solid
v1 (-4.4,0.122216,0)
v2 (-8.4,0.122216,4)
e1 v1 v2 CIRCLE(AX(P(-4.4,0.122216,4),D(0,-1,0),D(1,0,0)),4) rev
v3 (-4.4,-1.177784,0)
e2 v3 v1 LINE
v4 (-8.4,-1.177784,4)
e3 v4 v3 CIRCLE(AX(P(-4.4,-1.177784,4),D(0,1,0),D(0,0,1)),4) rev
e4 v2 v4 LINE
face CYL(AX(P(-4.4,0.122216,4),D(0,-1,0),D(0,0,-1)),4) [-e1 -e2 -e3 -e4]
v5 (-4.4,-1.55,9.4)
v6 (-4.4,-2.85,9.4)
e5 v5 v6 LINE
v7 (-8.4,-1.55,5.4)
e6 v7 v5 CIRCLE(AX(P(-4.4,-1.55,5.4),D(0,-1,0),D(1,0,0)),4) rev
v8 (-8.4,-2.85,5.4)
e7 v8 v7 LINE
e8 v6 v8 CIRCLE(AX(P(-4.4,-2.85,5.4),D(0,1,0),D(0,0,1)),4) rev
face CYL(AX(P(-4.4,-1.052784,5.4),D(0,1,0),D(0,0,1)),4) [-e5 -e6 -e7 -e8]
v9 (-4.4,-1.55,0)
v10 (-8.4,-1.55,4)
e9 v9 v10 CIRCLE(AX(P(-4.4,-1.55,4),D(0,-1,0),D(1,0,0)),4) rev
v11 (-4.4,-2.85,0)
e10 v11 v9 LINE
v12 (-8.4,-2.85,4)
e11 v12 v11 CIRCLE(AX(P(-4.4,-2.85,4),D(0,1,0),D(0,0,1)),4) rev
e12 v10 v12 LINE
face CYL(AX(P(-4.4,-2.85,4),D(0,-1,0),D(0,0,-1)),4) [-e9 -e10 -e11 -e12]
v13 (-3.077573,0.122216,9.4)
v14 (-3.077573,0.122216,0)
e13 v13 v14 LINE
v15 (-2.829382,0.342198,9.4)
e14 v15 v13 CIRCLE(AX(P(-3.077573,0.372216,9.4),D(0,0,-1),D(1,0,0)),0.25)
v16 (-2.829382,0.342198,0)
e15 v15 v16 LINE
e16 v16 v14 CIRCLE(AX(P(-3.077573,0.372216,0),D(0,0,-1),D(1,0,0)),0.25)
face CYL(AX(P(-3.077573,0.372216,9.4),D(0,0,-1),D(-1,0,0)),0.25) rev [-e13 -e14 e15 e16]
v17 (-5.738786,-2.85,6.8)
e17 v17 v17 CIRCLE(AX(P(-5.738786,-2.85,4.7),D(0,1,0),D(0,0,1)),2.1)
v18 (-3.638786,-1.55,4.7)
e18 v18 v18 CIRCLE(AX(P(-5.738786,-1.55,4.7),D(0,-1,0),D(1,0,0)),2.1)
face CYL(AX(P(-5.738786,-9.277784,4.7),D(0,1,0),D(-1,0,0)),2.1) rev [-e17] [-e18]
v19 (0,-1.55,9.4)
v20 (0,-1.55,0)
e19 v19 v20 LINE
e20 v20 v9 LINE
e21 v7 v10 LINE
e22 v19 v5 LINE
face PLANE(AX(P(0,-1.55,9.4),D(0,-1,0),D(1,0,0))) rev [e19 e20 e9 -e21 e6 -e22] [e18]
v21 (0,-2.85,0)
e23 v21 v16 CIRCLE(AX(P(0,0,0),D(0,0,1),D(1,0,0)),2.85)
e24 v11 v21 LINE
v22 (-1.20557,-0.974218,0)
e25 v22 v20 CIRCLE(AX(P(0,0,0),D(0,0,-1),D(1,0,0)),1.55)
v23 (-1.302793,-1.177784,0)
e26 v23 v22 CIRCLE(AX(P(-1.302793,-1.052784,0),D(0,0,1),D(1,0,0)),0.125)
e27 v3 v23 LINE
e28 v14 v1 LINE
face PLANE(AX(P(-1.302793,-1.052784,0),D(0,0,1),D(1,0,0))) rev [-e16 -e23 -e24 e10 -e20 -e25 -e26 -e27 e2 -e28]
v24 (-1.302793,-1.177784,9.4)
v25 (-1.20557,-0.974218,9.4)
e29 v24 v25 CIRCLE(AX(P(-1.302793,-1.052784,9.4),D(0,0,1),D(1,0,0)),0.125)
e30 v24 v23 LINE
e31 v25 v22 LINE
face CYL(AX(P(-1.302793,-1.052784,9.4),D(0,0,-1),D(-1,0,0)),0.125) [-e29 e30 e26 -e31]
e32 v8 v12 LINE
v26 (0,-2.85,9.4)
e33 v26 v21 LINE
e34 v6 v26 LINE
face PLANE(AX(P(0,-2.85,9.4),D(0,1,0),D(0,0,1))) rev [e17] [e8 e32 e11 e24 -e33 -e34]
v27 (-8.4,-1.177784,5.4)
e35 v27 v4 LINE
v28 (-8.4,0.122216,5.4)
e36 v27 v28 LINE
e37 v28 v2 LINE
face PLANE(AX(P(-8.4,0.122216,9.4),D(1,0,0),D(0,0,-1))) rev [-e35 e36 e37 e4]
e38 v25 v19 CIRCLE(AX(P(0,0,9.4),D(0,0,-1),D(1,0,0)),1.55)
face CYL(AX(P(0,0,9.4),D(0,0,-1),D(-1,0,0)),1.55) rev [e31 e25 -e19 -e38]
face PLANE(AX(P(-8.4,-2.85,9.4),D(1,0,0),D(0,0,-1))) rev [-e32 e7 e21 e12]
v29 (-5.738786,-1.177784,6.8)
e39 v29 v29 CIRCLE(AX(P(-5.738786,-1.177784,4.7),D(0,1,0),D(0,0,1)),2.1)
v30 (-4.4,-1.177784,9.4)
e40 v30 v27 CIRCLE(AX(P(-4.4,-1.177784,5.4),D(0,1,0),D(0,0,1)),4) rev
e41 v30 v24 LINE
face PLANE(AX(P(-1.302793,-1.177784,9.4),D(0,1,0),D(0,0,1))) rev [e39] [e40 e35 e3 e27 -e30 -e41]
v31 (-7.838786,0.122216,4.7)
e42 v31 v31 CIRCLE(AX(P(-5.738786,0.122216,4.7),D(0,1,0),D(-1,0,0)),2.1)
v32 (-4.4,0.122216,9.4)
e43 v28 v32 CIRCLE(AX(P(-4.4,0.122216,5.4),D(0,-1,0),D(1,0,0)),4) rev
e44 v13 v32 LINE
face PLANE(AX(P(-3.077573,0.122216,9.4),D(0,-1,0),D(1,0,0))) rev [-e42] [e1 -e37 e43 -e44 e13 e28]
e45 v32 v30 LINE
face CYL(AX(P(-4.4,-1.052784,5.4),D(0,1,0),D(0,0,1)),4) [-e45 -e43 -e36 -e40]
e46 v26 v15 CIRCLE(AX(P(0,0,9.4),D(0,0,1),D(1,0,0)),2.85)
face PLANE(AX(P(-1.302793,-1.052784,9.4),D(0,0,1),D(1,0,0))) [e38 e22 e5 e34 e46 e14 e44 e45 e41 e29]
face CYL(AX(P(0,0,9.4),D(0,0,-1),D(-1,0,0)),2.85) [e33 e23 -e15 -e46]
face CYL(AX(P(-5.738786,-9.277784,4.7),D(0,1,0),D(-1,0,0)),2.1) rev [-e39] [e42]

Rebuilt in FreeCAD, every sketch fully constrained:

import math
import FreeCAD as App
import Part
import Sketcher

V = App.Vector


def edges_at(feature, points):
    """Names of the edges that pass closest to the given points."""
    edges = feature.Shape.Edges
    near = lambda p: min(range(len(edges)), key=lambda i: edges[i].distToShape(Part.Vertex(*p))[0])
    return sorted({f"Edge{near(p) + 1}" for p in points})

doc = App.newDocument("Part")
body = doc.addObject("PartDesign::Body", "Body")

sketch1 = body.newObject("Sketcher::SketchObject", "Sketch")
sketch1.AttachmentSupport = (doc.getObject("XY_Plane"), [""])
sketch1.MapMode = "FlatFace"
sketch1.addGeometry(Part.LineSegment(V(0, -1.55, 0), V(-8.4, -1.55, 0)), False)
sketch1.addGeometry(Part.LineSegment(V(-8.4, -1.55, 0), V(-8.4, -2.85, 0)), False)
sketch1.addGeometry(Part.LineSegment(V(-8.4, -2.85, 0), V(0, -2.85, 0)), False)
sketch1.addGeometry(Part.ArcOfCircle(Part.Circle(V(0, 0, 0), V(0, 0, 1), 2.85), math.radians(-90), math.radians(173)), False)
sketch1.addGeometry(Part.ArcOfCircle(Part.Circle(V(-3.08, 0.37, 0), V(0, 0, 1), 0.25), math.radians(-90), math.radians(-7)), False)
sketch1.addGeometry(Part.LineSegment(V(-3.08, 0.12, 0), V(-8.4, 0.12, 0)), False)
sketch1.addGeometry(Part.LineSegment(V(-8.4, 0.12, 0), V(-8.4, -1.18, 0)), False)
sketch1.addGeometry(Part.LineSegment(V(-8.4, -1.18, 0), V(-1.3, -1.18, 0)), False)
sketch1.addGeometry(Part.ArcOfCircle(Part.Circle(V(-1.3, -1.05, 0), V(0, 0, 1), 0.12), math.radians(-90), math.radians(39)), False)
sketch1.addGeometry(Part.ArcOfCircle(Part.Circle(V(0, 0, 0), V(0, 0, 1), 1.55), math.radians(-90), math.radians(219)), False)
sketch1.addConstraint(Sketcher.Constraint("Coincident", 0, 2, 1, 1))
sketch1.addConstraint(Sketcher.Constraint("Coincident", 1, 2, 2, 1))
sketch1.addConstraint(Sketcher.Constraint("Tangent", 2, 2, 3, 1))
sketch1.addConstraint(Sketcher.Constraint("Tangent", 3, 2, 4, 2))
sketch1.addConstraint(Sketcher.Constraint("Tangent", 4, 1, 5, 1))
sketch1.addConstraint(Sketcher.Constraint("Coincident", 5, 2, 6, 1))
sketch1.addConstraint(Sketcher.Constraint("Coincident", 6, 2, 7, 1))
sketch1.addConstraint(Sketcher.Constraint("Tangent", 7, 2, 8, 1))
sketch1.addConstraint(Sketcher.Constraint("Tangent", 8, 2, 9, 2))
sketch1.addConstraint(Sketcher.Constraint("Tangent", 9, 1, 0, 1))
sketch1.addConstraint(Sketcher.Constraint("Horizontal", 0))
sketch1.addConstraint(Sketcher.Constraint("Vertical", 1))
sketch1.addConstraint(Sketcher.Constraint("Horizontal", 2))
sketch1.addConstraint(Sketcher.Constraint("Horizontal", 5))
sketch1.addConstraint(Sketcher.Constraint("Vertical", 6))
sketch1.addConstraint(Sketcher.Constraint("Horizontal", 7))
sketch1.addConstraint(Sketcher.Constraint("Coincident", 3, 3, -1, 1))
sketch1.addConstraint(Sketcher.Constraint("Coincident", 9, 3, -1, 1))
sketch1.addConstraint(Sketcher.Constraint("Vertical", 1, 2, 5, 2))
sketch1.addConstraint(Sketcher.Constraint("Equal", 1, 6))
sketch1.addConstraint(Sketcher.Constraint("Radius", 3, 2.85))
sketch1.addConstraint(Sketcher.Constraint("Radius", 4, 0.25))
sketch1.addConstraint(Sketcher.Constraint("Radius", 9, 1.55))
sketch1.addConstraint(Sketcher.Constraint("DistanceX", 0, 2, 0, 1, 8.4))
sketch1.addConstraint(Sketcher.Constraint("Radius", 8, 0.125))
sketch1.addConstraint(Sketcher.Constraint("DistanceY", -1, 1, 3, 2, 0.342198))
pad1 = body.newObject("PartDesign::Pad", "Pad")
pad1.Profile = sketch1
pad1.Length = 9.4

sketch2 = body.newObject("Sketcher::SketchObject", "Sketch001")
sketch2.AttachmentSupport = (doc.getObject("XZ_Plane"), [""])
sketch2.MapMode = "FlatFace"
sketch2.AttachmentOffset = App.Placement(V(0, 0, -0.122216), App.Rotation())
sketch2.addGeometry(Part.Circle(V(-5.7, 4.7, 0), V(0, 0, 1), 2.1), False)
sketch2.addConstraint(Sketcher.Constraint("Diameter", 0, 4.2))
sketch2.addConstraint(Sketcher.Constraint("DistanceY", -1, 1, 0, 3, 4.7))
sketch2.addConstraint(Sketcher.Constraint("DistanceX", 0, 3, -1, 1, 5.738786))
pocket1 = body.newObject("PartDesign::Pocket", "Pocket")
pocket1.Profile = sketch2
pocket1.Length = 9.4
pocket1.Reversed = True
doc.recompute()

fillet = body.newObject("PartDesign::Fillet", "Fillet")
fillet.Base = (pocket1, edges_at(pocket1, [
    (-8.4, -0.528, 0),
    (-8.4, -2.2, 0),
    (-8.4, -2.2, 9.4),
    (-8.4, -0.528, 9.4),
]))
fillet.Radius = 4

doc.recompute()
